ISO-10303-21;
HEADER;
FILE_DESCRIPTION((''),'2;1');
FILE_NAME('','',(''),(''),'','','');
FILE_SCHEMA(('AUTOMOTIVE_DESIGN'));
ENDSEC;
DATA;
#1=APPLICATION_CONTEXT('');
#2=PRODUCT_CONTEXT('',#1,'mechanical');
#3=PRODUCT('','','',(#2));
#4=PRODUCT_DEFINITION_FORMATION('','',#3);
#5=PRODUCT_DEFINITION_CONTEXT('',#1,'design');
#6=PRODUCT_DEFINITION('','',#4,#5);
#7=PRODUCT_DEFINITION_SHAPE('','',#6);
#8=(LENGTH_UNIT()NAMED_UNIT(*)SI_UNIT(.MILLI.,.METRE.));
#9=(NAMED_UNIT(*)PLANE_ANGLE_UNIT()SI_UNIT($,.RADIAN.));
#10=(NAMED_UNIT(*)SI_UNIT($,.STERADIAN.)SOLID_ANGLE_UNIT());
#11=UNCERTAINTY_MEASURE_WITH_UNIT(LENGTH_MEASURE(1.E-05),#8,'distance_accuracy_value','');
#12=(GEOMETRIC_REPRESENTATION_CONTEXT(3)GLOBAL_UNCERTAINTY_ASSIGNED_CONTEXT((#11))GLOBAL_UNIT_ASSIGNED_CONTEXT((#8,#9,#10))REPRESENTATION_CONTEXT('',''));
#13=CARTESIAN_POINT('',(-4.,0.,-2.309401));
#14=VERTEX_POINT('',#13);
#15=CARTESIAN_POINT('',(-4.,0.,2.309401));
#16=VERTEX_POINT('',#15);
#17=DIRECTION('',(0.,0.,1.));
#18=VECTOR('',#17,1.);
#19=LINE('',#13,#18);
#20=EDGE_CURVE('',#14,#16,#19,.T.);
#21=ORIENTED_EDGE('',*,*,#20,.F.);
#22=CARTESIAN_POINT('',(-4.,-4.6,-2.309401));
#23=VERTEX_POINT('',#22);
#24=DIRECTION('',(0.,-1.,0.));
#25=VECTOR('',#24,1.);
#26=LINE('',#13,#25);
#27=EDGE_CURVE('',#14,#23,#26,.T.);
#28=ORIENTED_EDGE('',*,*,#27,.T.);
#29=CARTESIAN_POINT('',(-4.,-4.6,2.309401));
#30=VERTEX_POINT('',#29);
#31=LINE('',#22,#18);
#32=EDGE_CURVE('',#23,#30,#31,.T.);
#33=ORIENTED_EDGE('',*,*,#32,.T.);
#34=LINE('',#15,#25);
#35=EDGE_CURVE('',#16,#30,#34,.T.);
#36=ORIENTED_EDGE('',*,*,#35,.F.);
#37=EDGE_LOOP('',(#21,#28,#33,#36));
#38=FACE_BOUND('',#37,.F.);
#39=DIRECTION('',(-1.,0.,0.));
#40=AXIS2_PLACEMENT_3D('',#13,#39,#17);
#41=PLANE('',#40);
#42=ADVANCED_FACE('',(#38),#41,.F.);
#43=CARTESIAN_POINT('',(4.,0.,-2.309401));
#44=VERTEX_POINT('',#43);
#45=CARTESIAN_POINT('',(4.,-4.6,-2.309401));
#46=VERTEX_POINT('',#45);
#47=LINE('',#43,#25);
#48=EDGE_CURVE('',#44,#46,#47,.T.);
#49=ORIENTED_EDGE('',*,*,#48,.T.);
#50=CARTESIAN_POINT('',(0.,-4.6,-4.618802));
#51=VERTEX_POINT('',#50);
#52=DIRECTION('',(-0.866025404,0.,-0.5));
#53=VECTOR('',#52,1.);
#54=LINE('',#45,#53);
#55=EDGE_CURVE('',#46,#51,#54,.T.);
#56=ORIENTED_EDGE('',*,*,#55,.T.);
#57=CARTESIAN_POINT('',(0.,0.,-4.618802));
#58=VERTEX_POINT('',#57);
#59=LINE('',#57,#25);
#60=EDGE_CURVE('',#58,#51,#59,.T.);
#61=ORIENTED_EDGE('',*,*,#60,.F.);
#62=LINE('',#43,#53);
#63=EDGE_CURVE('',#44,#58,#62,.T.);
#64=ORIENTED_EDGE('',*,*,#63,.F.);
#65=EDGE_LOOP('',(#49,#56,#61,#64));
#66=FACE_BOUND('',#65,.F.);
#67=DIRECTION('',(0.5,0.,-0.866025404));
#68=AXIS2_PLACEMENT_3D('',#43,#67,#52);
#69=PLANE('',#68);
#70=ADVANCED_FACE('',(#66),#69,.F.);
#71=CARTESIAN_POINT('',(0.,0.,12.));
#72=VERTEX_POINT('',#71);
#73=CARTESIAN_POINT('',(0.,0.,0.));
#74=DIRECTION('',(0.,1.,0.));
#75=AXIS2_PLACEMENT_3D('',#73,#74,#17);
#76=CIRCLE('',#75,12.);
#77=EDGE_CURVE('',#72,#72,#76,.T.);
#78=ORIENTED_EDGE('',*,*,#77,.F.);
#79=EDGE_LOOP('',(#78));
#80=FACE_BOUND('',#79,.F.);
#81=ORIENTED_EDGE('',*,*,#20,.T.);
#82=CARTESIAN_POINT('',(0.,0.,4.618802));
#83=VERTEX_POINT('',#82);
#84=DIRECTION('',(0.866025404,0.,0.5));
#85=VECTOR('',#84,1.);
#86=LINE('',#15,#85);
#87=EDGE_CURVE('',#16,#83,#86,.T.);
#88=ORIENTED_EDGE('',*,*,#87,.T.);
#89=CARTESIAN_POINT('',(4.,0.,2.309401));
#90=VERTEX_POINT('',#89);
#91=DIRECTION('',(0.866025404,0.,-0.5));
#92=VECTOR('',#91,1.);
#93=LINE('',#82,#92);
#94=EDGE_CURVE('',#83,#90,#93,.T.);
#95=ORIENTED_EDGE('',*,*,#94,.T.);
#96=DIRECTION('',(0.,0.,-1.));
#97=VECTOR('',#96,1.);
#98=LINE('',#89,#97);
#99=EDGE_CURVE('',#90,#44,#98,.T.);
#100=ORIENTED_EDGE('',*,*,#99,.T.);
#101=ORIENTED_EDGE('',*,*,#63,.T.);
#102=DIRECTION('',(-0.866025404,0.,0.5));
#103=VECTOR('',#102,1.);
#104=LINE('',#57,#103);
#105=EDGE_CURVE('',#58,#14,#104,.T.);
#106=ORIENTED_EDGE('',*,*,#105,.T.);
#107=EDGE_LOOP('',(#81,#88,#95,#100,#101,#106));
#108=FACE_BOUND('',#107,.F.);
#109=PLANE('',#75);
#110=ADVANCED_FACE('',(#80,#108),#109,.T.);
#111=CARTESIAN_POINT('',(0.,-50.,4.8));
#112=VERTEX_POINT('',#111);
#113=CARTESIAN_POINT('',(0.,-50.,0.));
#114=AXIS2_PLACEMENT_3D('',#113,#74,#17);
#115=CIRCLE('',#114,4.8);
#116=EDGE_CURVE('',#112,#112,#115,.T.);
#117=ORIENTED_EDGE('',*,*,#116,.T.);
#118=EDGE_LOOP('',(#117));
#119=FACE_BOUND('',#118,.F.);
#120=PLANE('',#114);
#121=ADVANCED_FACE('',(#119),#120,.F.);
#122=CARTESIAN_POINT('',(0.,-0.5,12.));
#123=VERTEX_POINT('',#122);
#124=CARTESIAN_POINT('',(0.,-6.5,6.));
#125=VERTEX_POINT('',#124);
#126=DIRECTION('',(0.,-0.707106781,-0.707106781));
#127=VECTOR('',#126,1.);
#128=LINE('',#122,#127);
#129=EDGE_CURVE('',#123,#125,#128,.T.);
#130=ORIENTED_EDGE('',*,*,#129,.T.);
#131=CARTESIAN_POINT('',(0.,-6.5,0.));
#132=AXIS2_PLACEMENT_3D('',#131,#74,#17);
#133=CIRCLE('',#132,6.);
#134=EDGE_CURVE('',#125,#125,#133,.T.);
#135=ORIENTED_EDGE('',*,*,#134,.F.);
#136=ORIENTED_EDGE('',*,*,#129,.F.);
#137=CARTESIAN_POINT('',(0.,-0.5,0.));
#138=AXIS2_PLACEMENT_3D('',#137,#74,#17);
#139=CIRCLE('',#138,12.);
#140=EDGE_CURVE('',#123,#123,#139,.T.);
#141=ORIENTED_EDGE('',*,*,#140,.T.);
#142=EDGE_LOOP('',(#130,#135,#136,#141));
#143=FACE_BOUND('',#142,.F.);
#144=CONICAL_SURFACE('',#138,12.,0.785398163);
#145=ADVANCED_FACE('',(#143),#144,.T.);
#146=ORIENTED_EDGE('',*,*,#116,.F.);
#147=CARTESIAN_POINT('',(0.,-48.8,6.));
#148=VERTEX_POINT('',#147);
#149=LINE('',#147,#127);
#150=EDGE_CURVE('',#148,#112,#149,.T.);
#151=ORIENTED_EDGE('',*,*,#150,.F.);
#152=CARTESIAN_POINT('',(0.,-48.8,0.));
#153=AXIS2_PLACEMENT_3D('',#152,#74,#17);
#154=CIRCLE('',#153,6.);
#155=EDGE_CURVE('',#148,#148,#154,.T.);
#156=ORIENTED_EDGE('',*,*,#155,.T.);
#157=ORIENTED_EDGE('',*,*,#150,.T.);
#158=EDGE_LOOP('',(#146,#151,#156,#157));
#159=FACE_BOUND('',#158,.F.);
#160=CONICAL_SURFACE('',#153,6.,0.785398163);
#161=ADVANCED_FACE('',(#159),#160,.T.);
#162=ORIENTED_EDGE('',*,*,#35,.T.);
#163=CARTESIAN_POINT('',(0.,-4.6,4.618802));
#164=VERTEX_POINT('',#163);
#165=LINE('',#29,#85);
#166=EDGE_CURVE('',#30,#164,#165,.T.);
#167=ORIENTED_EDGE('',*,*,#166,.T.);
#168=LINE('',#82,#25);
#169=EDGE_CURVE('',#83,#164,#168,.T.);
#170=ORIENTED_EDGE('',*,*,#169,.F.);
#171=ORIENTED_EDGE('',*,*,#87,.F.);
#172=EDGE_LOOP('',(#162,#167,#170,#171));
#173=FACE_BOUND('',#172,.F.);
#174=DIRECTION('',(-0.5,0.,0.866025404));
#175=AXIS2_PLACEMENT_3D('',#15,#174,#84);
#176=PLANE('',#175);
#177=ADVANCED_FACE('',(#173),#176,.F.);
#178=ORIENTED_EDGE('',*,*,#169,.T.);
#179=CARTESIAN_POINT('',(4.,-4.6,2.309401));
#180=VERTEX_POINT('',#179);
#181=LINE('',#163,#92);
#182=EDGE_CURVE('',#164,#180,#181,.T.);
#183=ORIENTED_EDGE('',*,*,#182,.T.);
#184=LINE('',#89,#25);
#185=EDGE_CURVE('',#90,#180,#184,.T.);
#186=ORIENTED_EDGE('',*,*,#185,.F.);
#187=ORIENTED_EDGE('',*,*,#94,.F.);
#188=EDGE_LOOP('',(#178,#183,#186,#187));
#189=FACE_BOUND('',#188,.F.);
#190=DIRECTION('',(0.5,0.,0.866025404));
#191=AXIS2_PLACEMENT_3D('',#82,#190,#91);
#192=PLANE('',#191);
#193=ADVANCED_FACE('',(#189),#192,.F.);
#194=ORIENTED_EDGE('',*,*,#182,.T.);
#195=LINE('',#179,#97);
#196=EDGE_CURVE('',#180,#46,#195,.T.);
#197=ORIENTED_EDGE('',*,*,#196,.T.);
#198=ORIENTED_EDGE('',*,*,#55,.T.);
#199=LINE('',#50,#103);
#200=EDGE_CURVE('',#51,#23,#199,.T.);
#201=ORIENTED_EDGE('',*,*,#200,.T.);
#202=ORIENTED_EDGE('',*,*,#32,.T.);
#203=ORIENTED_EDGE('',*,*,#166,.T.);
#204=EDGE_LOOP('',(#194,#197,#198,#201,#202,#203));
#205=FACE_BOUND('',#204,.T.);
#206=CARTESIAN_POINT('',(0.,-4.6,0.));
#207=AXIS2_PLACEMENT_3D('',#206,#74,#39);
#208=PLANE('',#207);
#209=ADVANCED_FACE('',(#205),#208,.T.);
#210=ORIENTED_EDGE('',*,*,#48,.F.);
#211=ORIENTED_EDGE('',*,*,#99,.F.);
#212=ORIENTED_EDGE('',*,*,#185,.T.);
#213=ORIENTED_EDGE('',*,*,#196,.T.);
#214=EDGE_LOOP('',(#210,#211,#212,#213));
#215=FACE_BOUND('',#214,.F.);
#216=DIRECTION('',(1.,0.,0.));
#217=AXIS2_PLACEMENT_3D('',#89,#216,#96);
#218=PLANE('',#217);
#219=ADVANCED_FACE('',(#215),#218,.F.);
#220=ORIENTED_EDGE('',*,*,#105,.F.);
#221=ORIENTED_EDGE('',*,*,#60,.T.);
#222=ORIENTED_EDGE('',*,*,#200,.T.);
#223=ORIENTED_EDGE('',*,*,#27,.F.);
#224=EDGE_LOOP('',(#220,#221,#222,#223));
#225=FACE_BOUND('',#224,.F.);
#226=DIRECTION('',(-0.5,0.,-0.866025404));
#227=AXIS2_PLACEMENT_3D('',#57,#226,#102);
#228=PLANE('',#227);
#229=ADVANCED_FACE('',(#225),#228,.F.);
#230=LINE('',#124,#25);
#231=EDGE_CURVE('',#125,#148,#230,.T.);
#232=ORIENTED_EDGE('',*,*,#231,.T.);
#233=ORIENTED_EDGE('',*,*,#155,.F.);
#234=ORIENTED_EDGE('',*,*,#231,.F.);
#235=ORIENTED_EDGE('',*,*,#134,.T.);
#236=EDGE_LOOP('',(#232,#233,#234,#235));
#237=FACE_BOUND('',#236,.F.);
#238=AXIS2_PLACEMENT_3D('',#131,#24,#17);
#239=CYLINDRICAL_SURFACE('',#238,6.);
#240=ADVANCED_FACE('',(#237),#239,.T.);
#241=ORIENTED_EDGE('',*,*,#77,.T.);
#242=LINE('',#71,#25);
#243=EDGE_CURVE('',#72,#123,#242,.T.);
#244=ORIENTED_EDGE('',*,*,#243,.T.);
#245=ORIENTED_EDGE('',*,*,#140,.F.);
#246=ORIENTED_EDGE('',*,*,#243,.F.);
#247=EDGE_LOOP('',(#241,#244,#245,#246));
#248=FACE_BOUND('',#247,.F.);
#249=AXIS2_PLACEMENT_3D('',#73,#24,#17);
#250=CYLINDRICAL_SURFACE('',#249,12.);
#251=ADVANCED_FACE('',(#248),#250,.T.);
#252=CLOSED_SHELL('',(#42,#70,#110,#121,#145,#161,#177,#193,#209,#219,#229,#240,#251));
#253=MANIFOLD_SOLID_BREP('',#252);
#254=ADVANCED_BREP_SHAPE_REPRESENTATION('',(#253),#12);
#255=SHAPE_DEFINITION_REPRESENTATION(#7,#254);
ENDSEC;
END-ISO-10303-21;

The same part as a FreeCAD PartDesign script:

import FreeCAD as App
import Part
import Sketcher
Q = App.Units.Quantity


def add_polygon(sketch, points):
    """Adds a closed chain of lines whose ends are joined by coincident constraints."""
    first, n = sketch.GeometryCount, len(points)
    for a, b in zip(points, points[1:] + points[:1]):
        sketch.addGeometry(Part.LineSegment(App.Vector(*a, 0), App.Vector(*b, 0)), False)
    for i in range(n):
        sketch.addConstraint(Sketcher.Constraint("Coincident", first + i, 2, first + (i + 1) % n, 1))

doc = App.newDocument("Part")
body = doc.addObject("PartDesign::Body", "Body")

# Sketch on YZ plane
sketch1 = body.newObject("Sketcher::SketchObject", "Sketch")
sketch1.AttachmentSupport = (doc.getObject("YZ_Plane"), [""])
sketch1.MapMode = "FlatFace"
add_polygon(sketch1, [(-50, 0), (0, 0), (0, 12), (-0.5, 12), (-6.5, 6), (-48.8, 6), (-50, 4.8)])  # lines 0-6
sketch1.addConstraint(Sketcher.Constraint("Horizontal", 0))
sketch1.addConstraint(Sketcher.Constraint("Vertical", 1))
sketch1.addConstraint(Sketcher.Constraint("Horizontal", 2))
sketch1.addConstraint(Sketcher.Constraint("Horizontal", 4))
sketch1.addConstraint(Sketcher.Constraint("Vertical", 6))
sketch1.addConstraint(Sketcher.Constraint("Coincident", 0, 2, -1, 1))
sketch1.addConstraint(Sketcher.Constraint("Parallel", 3, 5))
sketch1.addConstraint(Sketcher.Constraint("DistanceX", 0, 1, 0, 2, 50.0))
sketch1.addConstraint(Sketcher.Constraint("DistanceY", 1, 1, 1, 2, 12.0))
sketch1.addConstraint(Sketcher.Constraint("Angle", 3, Q("-135 deg")))
sketch1.addConstraint(Sketcher.Constraint("DistanceX", 2, 2, 2, 1, 0.5))
sketch1.addConstraint(Sketcher.Constraint("DistanceX", 4, 2, 4, 1, 42.3))
sketch1.addConstraint(Sketcher.Constraint("DistanceY", -1, 1, 3, 2, 6.0))
revolution = body.newObject("PartDesign::Revolution", "Revolution")
revolution.Profile = sketch1
revolution.ReferenceAxis = (sketch1, ["H_Axis"])
revolution.Angle = 360

# Sketch on XZ plane
sketch2 = body.newObject("Sketcher::SketchObject", "Sketch001")
sketch2.AttachmentSupport = (doc.getObject("XZ_Plane"), [""])
sketch2.MapMode = "FlatFace"
add_polygon(sketch2, [(-4, 2.3), (0, 4.6), (4, 2.3), (4, -2.3), (0, -4.6), (-4, -2.3)])  # lines 0-5
sketch2.addConstraint(Sketcher.Constraint("Vertical", 2))
sketch2.addConstraint(Sketcher.Constraint("Vertical", 5))
sketch2.addConstraint(Sketcher.Constraint("Symmetric", 0, 2, 3, 2, -1, 1))
sketch2.addConstraint(Sketcher.Constraint("Symmetric", 1, 2, 4, 2, -1, 1))
sketch2.addConstraint(Sketcher.Constraint("PointOnObject", 0, 2, -2))
sketch2.addConstraint(Sketcher.Constraint("Parallel", 0, 3))
sketch2.addConstraint(Sketcher.Constraint("Horizontal", 2, 2, 4, 2))
sketch2.addConstraint(Sketcher.Constraint("Angle", 0, Q("30 deg")))
sketch2.addConstraint(Sketcher.Constraint("DistanceX", -1, 1, 1, 2, 4.0))
sketch2.addConstraint(Sketcher.Constraint("DistanceY", -1, 1, 1, 2, 2.309401))
pocket1 = body.newObject("PartDesign::Pocket", "Pocket")
pocket1.Profile = sketch2
pocket1.Length = 4.6
pocket1.Reversed = True

doc.recompute()
